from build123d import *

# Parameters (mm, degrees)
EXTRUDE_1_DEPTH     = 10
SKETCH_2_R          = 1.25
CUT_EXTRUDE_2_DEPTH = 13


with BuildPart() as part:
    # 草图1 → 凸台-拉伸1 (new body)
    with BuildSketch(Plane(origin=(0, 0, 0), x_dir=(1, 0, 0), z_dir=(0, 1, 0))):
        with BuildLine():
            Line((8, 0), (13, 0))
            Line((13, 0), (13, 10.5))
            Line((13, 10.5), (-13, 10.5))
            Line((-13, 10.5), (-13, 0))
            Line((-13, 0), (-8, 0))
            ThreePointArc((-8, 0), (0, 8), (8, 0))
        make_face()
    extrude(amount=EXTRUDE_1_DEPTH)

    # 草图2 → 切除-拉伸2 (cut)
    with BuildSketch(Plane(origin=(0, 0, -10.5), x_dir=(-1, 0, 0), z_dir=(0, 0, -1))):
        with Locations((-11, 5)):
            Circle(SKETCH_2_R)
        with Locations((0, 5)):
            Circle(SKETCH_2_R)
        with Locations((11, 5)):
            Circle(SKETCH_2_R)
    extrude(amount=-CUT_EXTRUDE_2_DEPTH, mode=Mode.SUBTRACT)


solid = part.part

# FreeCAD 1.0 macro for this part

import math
import FreeCAD as App
import Part
import Sketcher
Q = App.Units.Quantity

doc = App.newDocument("Part")
body = doc.addObject("PartDesign::Body", "Body")

sketch1 = body.newObject("Sketcher::SketchObject", "Sketch")
sketch1.AttachmentSupport = (doc.getObject("XZ_Plane"), [""])
sketch1.MapMode = "FlatFace"
sketch1.addGeometry([
    Part.LineSegment(App.Vector(8, 0, 0), App.Vector(13, 0, 0)),
    Part.LineSegment(App.Vector(13, 0, 0), App.Vector(13, -10, 0)),
    Part.LineSegment(App.Vector(13, -10, 0), App.Vector(-13, -10, 0)),
    Part.LineSegment(App.Vector(-13, -10, 0), App.Vector(-13, 0, 0)),
    Part.LineSegment(App.Vector(-13, 0, 0), App.Vector(-8, 0, 0)),
    Part.ArcOfCircle(Part.Circle(App.Vector(0, 0, 0), App.Vector(0, 0, 1), 8), math.radians(180), math.radians(360)),
], False)
sketch1.addConstraint([
    Sketcher.Constraint("Coincident", 0, 2, 1, 1),
    Sketcher.Constraint("Coincident", 1, 2, 2, 1),
    Sketcher.Constraint("Coincident", 2, 2, 3, 1),
    Sketcher.Constraint("Coincident", 3, 2, 4, 1),
    Sketcher.Constraint("Coincident", 4, 2, 5, 1),
    Sketcher.Constraint("Coincident", 5, 2, 0, 1),
    Sketcher.Constraint("Horizontal", 0),
    Sketcher.Constraint("Vertical", 1),
    Sketcher.Constraint("Horizontal", 2),
    Sketcher.Constraint("Vertical", 3),
    Sketcher.Constraint("Horizontal", 4),
    Sketcher.Constraint("Coincident", 5, 3, -1, 1),
    Sketcher.Constraint("Symmetric", 0, 2, 3, 2, -1, 1),
    Sketcher.Constraint("PointOnObject", 0, 2, -1),
    Sketcher.Constraint("Radius", 5, Q("8 mm")),
    Sketcher.Constraint("DistanceX", 0, 1, 0, 2, Q("5 mm")),
    Sketcher.Constraint("DistanceY", 1, 2, 1, 1, Q("10.5 mm")),
])
pad1 = body.newObject("PartDesign::Pad", "Pad")
pad1.Profile = sketch1
pad1.Length = 10
pad1.Reversed = True

sketch2 = body.newObject("Sketcher::SketchObject", "Sketch001")
sketch2.AttachmentSupport = (doc.getObject("XY_Plane"), [""])
sketch2.MapMode = "FlatFace"
sketch2.AttachmentOffset = App.Placement(App.Vector(0, 0, -10.5), App.Rotation())
sketch2.addGeometry([
    Part.Circle(App.Vector(11, 5, 0), App.Vector(0, 0, 1), 1.2),
    Part.Circle(App.Vector(0, 5, 0), App.Vector(0, 0, 1), 1.2),
    Part.Circle(App.Vector(-11, 5, 0), App.Vector(0, 0, 1), 1.2),
], False)
sketch2.addConstraint([
    Sketcher.Constraint("Equal", 0, 1),
    Sketcher.Constraint("Equal", 1, 2),
    Sketcher.Constraint("Symmetric", 0, 3, 2, 3, -2),
    Sketcher.Constraint("PointOnObject", 1, 3, -2),
    Sketcher.Constraint("Horizontal", 0, 3, 1, 3),
    Sketcher.Constraint("Diameter", 0, Q("2.5 mm")),
    Sketcher.Constraint("DistanceX", -1, 1, 0, 3, Q("11 mm")),
    Sketcher.Constraint("DistanceY", -1, 1, 0, 3, Q("5 mm")),
])
pocket1 = body.newObject("PartDesign::Pocket", "Pocket")
pocket1.Profile = sketch2
pocket1.Length = 13
pocket1.Reversed = True

doc.recompute()
